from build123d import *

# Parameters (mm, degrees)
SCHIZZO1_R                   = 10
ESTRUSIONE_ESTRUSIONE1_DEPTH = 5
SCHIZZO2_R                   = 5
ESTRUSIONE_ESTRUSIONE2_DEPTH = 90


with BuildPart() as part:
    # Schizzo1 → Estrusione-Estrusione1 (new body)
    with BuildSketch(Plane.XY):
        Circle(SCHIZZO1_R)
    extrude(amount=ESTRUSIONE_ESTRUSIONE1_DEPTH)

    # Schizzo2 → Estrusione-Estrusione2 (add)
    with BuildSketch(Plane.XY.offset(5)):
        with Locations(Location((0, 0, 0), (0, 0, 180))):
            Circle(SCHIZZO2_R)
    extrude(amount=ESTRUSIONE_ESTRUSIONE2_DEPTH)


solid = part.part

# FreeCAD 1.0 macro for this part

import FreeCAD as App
import Part
import Sketcher
from FreeCAD import Vector

doc = App.newDocument("Part")
params = doc.addObject("Spreadsheet::Sheet", "Params")
for row, (alias, value) in enumerate([
    ("sketch1_diameter", "20 mm"),
    ("pad1_length", "5 mm"),
    ("sketch2_diameter", "10 mm"),
    ("pad2_length", "90 mm"),
], start=1):
    params.set(f"A{row}", alias)
    params.set(f"B{row}", "=" + value)
    params.setAlias(f"B{row}", alias)

body = doc.addObject("PartDesign::Body", "Body")

# Sketch on XY plane
sketch1 = body.newObject("Sketcher::SketchObject", "Sketch")
sketch1.AttachmentSupport = (doc.getObject("XY_Plane"), [""])
sketch1.MapMode = "FlatFace"
sketch1.addGeometry(Part.Circle(Vector(0, 0, 0), Vector(0, 0, 1), 10), False)
sketch1.addConstraint([
    Sketcher.Constraint("Coincident", 0, 3, -1, 1),
    Sketcher.Constraint("Diameter", 0, 20.0),
])
sketch1.setExpression("Constraints[1]", "Params.sketch1_diameter")
pad1 = body.newObject("PartDesign::Pad", "Pad")
pad1.Profile = sketch1
pad1.setExpression("Length", "Params.pad1_length")

# Sketch on XY plane
sketch2 = body.newObject("Sketcher::SketchObject", "Sketch001")
sketch2.AttachmentSupport = (doc.getObject("XY_Plane"), [""])
sketch2.MapMode = "FlatFace"
sketch2.AttachmentOffset = App.Placement(Vector(0, 0, 5), App.Rotation())
sketch2.addGeometry(Part.Circle(Vector(0, 0, 0), Vector(0, 0, 1), 5), False)
sketch2.addConstraint([
    Sketcher.Constraint("Coincident", 0, 3, -1, 1),
    Sketcher.Constraint("Diameter", 0, 10.0),
])
sketch2.setExpression("Constraints[1]", "Params.sketch2_diameter")
pad2 = body.newObject("PartDesign::Pad", "Pad001")
pad2.Profile = sketch2
pad2.setExpression("Length", "Params.pad2_length")

doc.recompute()
